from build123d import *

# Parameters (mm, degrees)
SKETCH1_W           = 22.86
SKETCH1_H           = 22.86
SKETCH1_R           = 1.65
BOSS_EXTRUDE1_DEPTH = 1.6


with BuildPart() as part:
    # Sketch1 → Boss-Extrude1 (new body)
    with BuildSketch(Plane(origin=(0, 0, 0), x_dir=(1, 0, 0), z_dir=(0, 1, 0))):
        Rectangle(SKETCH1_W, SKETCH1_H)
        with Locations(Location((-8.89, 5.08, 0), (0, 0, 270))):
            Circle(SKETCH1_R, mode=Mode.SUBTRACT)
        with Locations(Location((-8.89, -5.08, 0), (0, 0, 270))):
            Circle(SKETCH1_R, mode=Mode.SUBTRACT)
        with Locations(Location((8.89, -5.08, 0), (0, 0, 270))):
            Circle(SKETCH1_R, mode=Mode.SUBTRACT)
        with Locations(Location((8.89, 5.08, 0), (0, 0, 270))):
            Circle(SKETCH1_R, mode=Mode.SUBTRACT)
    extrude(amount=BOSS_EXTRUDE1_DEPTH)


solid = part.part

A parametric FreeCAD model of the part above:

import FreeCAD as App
import Part
import Sketcher
Q = App.Units.Quantity

doc = App.newDocument("Part")
body = doc.addObject("PartDesign::Body", "Body")

# Sketch on XZ plane
sketch1 = body.newObject("Sketcher::SketchObject", "Sketch")
sketch1.AttachmentSupport = (doc.getObject("XZ_Plane"), [""])
sketch1.MapMode = "FlatFace"
sketch1.addGeometry([
    Part.LineSegment(App.Vector(-11.43, -11.43, 0), App.Vector(-11.43, 11.43, 0)),  # 0
    Part.LineSegment(App.Vector(-11.43, 11.43, 0), App.Vector(11.43, 11.43, 0)),  # 1
    Part.LineSegment(App.Vector(11.43, 11.43, 0), App.Vector(11.43, -11.43, 0)),  # 2
    Part.LineSegment(App.Vector(11.43, -11.43, 0), App.Vector(-11.43, -11.43, 0)),  # 3
    Part.Circle(App.Vector(-8.89, 5.08, 0), App.Vector(0, 0, 1), 1.65),  # 4
    Part.Circle(App.Vector(8.89, 5.08, 0), App.Vector(0, 0, 1), 1.65),  # 5
    Part.Circle(App.Vector(-8.89, -5.08, 0), App.Vector(0, 0, 1), 1.65),  # 6
    Part.Circle(App.Vector(8.89, -5.08, 0), App.Vector(0, 0, 1), 1.65),  # 7
], False)
sketch1.addConstraint([
    Sketcher.Constraint("Coincident", 0, 2, 1, 1),
    Sketcher.Constraint("Coincident", 1, 2, 2, 1),
    Sketcher.Constraint("Coincident", 2, 2, 3, 1),
    Sketcher.Constraint("Coincident", 3, 2, 0, 1),
    Sketcher.Constraint("Vertical", 0),
    Sketcher.Constraint("Horizontal", 1),
    Sketcher.Constraint("Vertical", 2),
    Sketcher.Constraint("Horizontal", 3),
    Sketcher.Constraint("Equal", 4, 5),
    Sketcher.Constraint("Equal", 5, 6),
    Sketcher.Constraint("Equal", 6, 7),
    Sketcher.Constraint("Symmetric", 5, 3, 6, 3, -1, 1),
    Sketcher.Constraint("Symmetric", 4, 3, 7, 3, -1, 1),
    Sketcher.Constraint("Symmetric", 0, 2, 2, 2, -1, 1),
    Sketcher.Constraint("Symmetric", 4, 3, 5, 3, -2),
    Sketcher.Constraint("Equal", 3, 0),
    Sketcher.Constraint("Diameter", 4, Q("3.3 mm")),
    Sketcher.Constraint("DistanceX", 1, 1, 1, 2, Q("22.86 mm")),
    Sketcher.Constraint("DistanceX", 4, 3, -1, 1, Q("8.89 mm")),
    Sketcher.Constraint("DistanceY", -1, 1, 4, 3, Q("5.08 mm")),
])
pad1 = body.newObject("PartDesign::Pad", "Pad")
pad1.Profile = sketch1
pad1.Length = 1.6
pad1.Reversed = True

doc.recompute()
